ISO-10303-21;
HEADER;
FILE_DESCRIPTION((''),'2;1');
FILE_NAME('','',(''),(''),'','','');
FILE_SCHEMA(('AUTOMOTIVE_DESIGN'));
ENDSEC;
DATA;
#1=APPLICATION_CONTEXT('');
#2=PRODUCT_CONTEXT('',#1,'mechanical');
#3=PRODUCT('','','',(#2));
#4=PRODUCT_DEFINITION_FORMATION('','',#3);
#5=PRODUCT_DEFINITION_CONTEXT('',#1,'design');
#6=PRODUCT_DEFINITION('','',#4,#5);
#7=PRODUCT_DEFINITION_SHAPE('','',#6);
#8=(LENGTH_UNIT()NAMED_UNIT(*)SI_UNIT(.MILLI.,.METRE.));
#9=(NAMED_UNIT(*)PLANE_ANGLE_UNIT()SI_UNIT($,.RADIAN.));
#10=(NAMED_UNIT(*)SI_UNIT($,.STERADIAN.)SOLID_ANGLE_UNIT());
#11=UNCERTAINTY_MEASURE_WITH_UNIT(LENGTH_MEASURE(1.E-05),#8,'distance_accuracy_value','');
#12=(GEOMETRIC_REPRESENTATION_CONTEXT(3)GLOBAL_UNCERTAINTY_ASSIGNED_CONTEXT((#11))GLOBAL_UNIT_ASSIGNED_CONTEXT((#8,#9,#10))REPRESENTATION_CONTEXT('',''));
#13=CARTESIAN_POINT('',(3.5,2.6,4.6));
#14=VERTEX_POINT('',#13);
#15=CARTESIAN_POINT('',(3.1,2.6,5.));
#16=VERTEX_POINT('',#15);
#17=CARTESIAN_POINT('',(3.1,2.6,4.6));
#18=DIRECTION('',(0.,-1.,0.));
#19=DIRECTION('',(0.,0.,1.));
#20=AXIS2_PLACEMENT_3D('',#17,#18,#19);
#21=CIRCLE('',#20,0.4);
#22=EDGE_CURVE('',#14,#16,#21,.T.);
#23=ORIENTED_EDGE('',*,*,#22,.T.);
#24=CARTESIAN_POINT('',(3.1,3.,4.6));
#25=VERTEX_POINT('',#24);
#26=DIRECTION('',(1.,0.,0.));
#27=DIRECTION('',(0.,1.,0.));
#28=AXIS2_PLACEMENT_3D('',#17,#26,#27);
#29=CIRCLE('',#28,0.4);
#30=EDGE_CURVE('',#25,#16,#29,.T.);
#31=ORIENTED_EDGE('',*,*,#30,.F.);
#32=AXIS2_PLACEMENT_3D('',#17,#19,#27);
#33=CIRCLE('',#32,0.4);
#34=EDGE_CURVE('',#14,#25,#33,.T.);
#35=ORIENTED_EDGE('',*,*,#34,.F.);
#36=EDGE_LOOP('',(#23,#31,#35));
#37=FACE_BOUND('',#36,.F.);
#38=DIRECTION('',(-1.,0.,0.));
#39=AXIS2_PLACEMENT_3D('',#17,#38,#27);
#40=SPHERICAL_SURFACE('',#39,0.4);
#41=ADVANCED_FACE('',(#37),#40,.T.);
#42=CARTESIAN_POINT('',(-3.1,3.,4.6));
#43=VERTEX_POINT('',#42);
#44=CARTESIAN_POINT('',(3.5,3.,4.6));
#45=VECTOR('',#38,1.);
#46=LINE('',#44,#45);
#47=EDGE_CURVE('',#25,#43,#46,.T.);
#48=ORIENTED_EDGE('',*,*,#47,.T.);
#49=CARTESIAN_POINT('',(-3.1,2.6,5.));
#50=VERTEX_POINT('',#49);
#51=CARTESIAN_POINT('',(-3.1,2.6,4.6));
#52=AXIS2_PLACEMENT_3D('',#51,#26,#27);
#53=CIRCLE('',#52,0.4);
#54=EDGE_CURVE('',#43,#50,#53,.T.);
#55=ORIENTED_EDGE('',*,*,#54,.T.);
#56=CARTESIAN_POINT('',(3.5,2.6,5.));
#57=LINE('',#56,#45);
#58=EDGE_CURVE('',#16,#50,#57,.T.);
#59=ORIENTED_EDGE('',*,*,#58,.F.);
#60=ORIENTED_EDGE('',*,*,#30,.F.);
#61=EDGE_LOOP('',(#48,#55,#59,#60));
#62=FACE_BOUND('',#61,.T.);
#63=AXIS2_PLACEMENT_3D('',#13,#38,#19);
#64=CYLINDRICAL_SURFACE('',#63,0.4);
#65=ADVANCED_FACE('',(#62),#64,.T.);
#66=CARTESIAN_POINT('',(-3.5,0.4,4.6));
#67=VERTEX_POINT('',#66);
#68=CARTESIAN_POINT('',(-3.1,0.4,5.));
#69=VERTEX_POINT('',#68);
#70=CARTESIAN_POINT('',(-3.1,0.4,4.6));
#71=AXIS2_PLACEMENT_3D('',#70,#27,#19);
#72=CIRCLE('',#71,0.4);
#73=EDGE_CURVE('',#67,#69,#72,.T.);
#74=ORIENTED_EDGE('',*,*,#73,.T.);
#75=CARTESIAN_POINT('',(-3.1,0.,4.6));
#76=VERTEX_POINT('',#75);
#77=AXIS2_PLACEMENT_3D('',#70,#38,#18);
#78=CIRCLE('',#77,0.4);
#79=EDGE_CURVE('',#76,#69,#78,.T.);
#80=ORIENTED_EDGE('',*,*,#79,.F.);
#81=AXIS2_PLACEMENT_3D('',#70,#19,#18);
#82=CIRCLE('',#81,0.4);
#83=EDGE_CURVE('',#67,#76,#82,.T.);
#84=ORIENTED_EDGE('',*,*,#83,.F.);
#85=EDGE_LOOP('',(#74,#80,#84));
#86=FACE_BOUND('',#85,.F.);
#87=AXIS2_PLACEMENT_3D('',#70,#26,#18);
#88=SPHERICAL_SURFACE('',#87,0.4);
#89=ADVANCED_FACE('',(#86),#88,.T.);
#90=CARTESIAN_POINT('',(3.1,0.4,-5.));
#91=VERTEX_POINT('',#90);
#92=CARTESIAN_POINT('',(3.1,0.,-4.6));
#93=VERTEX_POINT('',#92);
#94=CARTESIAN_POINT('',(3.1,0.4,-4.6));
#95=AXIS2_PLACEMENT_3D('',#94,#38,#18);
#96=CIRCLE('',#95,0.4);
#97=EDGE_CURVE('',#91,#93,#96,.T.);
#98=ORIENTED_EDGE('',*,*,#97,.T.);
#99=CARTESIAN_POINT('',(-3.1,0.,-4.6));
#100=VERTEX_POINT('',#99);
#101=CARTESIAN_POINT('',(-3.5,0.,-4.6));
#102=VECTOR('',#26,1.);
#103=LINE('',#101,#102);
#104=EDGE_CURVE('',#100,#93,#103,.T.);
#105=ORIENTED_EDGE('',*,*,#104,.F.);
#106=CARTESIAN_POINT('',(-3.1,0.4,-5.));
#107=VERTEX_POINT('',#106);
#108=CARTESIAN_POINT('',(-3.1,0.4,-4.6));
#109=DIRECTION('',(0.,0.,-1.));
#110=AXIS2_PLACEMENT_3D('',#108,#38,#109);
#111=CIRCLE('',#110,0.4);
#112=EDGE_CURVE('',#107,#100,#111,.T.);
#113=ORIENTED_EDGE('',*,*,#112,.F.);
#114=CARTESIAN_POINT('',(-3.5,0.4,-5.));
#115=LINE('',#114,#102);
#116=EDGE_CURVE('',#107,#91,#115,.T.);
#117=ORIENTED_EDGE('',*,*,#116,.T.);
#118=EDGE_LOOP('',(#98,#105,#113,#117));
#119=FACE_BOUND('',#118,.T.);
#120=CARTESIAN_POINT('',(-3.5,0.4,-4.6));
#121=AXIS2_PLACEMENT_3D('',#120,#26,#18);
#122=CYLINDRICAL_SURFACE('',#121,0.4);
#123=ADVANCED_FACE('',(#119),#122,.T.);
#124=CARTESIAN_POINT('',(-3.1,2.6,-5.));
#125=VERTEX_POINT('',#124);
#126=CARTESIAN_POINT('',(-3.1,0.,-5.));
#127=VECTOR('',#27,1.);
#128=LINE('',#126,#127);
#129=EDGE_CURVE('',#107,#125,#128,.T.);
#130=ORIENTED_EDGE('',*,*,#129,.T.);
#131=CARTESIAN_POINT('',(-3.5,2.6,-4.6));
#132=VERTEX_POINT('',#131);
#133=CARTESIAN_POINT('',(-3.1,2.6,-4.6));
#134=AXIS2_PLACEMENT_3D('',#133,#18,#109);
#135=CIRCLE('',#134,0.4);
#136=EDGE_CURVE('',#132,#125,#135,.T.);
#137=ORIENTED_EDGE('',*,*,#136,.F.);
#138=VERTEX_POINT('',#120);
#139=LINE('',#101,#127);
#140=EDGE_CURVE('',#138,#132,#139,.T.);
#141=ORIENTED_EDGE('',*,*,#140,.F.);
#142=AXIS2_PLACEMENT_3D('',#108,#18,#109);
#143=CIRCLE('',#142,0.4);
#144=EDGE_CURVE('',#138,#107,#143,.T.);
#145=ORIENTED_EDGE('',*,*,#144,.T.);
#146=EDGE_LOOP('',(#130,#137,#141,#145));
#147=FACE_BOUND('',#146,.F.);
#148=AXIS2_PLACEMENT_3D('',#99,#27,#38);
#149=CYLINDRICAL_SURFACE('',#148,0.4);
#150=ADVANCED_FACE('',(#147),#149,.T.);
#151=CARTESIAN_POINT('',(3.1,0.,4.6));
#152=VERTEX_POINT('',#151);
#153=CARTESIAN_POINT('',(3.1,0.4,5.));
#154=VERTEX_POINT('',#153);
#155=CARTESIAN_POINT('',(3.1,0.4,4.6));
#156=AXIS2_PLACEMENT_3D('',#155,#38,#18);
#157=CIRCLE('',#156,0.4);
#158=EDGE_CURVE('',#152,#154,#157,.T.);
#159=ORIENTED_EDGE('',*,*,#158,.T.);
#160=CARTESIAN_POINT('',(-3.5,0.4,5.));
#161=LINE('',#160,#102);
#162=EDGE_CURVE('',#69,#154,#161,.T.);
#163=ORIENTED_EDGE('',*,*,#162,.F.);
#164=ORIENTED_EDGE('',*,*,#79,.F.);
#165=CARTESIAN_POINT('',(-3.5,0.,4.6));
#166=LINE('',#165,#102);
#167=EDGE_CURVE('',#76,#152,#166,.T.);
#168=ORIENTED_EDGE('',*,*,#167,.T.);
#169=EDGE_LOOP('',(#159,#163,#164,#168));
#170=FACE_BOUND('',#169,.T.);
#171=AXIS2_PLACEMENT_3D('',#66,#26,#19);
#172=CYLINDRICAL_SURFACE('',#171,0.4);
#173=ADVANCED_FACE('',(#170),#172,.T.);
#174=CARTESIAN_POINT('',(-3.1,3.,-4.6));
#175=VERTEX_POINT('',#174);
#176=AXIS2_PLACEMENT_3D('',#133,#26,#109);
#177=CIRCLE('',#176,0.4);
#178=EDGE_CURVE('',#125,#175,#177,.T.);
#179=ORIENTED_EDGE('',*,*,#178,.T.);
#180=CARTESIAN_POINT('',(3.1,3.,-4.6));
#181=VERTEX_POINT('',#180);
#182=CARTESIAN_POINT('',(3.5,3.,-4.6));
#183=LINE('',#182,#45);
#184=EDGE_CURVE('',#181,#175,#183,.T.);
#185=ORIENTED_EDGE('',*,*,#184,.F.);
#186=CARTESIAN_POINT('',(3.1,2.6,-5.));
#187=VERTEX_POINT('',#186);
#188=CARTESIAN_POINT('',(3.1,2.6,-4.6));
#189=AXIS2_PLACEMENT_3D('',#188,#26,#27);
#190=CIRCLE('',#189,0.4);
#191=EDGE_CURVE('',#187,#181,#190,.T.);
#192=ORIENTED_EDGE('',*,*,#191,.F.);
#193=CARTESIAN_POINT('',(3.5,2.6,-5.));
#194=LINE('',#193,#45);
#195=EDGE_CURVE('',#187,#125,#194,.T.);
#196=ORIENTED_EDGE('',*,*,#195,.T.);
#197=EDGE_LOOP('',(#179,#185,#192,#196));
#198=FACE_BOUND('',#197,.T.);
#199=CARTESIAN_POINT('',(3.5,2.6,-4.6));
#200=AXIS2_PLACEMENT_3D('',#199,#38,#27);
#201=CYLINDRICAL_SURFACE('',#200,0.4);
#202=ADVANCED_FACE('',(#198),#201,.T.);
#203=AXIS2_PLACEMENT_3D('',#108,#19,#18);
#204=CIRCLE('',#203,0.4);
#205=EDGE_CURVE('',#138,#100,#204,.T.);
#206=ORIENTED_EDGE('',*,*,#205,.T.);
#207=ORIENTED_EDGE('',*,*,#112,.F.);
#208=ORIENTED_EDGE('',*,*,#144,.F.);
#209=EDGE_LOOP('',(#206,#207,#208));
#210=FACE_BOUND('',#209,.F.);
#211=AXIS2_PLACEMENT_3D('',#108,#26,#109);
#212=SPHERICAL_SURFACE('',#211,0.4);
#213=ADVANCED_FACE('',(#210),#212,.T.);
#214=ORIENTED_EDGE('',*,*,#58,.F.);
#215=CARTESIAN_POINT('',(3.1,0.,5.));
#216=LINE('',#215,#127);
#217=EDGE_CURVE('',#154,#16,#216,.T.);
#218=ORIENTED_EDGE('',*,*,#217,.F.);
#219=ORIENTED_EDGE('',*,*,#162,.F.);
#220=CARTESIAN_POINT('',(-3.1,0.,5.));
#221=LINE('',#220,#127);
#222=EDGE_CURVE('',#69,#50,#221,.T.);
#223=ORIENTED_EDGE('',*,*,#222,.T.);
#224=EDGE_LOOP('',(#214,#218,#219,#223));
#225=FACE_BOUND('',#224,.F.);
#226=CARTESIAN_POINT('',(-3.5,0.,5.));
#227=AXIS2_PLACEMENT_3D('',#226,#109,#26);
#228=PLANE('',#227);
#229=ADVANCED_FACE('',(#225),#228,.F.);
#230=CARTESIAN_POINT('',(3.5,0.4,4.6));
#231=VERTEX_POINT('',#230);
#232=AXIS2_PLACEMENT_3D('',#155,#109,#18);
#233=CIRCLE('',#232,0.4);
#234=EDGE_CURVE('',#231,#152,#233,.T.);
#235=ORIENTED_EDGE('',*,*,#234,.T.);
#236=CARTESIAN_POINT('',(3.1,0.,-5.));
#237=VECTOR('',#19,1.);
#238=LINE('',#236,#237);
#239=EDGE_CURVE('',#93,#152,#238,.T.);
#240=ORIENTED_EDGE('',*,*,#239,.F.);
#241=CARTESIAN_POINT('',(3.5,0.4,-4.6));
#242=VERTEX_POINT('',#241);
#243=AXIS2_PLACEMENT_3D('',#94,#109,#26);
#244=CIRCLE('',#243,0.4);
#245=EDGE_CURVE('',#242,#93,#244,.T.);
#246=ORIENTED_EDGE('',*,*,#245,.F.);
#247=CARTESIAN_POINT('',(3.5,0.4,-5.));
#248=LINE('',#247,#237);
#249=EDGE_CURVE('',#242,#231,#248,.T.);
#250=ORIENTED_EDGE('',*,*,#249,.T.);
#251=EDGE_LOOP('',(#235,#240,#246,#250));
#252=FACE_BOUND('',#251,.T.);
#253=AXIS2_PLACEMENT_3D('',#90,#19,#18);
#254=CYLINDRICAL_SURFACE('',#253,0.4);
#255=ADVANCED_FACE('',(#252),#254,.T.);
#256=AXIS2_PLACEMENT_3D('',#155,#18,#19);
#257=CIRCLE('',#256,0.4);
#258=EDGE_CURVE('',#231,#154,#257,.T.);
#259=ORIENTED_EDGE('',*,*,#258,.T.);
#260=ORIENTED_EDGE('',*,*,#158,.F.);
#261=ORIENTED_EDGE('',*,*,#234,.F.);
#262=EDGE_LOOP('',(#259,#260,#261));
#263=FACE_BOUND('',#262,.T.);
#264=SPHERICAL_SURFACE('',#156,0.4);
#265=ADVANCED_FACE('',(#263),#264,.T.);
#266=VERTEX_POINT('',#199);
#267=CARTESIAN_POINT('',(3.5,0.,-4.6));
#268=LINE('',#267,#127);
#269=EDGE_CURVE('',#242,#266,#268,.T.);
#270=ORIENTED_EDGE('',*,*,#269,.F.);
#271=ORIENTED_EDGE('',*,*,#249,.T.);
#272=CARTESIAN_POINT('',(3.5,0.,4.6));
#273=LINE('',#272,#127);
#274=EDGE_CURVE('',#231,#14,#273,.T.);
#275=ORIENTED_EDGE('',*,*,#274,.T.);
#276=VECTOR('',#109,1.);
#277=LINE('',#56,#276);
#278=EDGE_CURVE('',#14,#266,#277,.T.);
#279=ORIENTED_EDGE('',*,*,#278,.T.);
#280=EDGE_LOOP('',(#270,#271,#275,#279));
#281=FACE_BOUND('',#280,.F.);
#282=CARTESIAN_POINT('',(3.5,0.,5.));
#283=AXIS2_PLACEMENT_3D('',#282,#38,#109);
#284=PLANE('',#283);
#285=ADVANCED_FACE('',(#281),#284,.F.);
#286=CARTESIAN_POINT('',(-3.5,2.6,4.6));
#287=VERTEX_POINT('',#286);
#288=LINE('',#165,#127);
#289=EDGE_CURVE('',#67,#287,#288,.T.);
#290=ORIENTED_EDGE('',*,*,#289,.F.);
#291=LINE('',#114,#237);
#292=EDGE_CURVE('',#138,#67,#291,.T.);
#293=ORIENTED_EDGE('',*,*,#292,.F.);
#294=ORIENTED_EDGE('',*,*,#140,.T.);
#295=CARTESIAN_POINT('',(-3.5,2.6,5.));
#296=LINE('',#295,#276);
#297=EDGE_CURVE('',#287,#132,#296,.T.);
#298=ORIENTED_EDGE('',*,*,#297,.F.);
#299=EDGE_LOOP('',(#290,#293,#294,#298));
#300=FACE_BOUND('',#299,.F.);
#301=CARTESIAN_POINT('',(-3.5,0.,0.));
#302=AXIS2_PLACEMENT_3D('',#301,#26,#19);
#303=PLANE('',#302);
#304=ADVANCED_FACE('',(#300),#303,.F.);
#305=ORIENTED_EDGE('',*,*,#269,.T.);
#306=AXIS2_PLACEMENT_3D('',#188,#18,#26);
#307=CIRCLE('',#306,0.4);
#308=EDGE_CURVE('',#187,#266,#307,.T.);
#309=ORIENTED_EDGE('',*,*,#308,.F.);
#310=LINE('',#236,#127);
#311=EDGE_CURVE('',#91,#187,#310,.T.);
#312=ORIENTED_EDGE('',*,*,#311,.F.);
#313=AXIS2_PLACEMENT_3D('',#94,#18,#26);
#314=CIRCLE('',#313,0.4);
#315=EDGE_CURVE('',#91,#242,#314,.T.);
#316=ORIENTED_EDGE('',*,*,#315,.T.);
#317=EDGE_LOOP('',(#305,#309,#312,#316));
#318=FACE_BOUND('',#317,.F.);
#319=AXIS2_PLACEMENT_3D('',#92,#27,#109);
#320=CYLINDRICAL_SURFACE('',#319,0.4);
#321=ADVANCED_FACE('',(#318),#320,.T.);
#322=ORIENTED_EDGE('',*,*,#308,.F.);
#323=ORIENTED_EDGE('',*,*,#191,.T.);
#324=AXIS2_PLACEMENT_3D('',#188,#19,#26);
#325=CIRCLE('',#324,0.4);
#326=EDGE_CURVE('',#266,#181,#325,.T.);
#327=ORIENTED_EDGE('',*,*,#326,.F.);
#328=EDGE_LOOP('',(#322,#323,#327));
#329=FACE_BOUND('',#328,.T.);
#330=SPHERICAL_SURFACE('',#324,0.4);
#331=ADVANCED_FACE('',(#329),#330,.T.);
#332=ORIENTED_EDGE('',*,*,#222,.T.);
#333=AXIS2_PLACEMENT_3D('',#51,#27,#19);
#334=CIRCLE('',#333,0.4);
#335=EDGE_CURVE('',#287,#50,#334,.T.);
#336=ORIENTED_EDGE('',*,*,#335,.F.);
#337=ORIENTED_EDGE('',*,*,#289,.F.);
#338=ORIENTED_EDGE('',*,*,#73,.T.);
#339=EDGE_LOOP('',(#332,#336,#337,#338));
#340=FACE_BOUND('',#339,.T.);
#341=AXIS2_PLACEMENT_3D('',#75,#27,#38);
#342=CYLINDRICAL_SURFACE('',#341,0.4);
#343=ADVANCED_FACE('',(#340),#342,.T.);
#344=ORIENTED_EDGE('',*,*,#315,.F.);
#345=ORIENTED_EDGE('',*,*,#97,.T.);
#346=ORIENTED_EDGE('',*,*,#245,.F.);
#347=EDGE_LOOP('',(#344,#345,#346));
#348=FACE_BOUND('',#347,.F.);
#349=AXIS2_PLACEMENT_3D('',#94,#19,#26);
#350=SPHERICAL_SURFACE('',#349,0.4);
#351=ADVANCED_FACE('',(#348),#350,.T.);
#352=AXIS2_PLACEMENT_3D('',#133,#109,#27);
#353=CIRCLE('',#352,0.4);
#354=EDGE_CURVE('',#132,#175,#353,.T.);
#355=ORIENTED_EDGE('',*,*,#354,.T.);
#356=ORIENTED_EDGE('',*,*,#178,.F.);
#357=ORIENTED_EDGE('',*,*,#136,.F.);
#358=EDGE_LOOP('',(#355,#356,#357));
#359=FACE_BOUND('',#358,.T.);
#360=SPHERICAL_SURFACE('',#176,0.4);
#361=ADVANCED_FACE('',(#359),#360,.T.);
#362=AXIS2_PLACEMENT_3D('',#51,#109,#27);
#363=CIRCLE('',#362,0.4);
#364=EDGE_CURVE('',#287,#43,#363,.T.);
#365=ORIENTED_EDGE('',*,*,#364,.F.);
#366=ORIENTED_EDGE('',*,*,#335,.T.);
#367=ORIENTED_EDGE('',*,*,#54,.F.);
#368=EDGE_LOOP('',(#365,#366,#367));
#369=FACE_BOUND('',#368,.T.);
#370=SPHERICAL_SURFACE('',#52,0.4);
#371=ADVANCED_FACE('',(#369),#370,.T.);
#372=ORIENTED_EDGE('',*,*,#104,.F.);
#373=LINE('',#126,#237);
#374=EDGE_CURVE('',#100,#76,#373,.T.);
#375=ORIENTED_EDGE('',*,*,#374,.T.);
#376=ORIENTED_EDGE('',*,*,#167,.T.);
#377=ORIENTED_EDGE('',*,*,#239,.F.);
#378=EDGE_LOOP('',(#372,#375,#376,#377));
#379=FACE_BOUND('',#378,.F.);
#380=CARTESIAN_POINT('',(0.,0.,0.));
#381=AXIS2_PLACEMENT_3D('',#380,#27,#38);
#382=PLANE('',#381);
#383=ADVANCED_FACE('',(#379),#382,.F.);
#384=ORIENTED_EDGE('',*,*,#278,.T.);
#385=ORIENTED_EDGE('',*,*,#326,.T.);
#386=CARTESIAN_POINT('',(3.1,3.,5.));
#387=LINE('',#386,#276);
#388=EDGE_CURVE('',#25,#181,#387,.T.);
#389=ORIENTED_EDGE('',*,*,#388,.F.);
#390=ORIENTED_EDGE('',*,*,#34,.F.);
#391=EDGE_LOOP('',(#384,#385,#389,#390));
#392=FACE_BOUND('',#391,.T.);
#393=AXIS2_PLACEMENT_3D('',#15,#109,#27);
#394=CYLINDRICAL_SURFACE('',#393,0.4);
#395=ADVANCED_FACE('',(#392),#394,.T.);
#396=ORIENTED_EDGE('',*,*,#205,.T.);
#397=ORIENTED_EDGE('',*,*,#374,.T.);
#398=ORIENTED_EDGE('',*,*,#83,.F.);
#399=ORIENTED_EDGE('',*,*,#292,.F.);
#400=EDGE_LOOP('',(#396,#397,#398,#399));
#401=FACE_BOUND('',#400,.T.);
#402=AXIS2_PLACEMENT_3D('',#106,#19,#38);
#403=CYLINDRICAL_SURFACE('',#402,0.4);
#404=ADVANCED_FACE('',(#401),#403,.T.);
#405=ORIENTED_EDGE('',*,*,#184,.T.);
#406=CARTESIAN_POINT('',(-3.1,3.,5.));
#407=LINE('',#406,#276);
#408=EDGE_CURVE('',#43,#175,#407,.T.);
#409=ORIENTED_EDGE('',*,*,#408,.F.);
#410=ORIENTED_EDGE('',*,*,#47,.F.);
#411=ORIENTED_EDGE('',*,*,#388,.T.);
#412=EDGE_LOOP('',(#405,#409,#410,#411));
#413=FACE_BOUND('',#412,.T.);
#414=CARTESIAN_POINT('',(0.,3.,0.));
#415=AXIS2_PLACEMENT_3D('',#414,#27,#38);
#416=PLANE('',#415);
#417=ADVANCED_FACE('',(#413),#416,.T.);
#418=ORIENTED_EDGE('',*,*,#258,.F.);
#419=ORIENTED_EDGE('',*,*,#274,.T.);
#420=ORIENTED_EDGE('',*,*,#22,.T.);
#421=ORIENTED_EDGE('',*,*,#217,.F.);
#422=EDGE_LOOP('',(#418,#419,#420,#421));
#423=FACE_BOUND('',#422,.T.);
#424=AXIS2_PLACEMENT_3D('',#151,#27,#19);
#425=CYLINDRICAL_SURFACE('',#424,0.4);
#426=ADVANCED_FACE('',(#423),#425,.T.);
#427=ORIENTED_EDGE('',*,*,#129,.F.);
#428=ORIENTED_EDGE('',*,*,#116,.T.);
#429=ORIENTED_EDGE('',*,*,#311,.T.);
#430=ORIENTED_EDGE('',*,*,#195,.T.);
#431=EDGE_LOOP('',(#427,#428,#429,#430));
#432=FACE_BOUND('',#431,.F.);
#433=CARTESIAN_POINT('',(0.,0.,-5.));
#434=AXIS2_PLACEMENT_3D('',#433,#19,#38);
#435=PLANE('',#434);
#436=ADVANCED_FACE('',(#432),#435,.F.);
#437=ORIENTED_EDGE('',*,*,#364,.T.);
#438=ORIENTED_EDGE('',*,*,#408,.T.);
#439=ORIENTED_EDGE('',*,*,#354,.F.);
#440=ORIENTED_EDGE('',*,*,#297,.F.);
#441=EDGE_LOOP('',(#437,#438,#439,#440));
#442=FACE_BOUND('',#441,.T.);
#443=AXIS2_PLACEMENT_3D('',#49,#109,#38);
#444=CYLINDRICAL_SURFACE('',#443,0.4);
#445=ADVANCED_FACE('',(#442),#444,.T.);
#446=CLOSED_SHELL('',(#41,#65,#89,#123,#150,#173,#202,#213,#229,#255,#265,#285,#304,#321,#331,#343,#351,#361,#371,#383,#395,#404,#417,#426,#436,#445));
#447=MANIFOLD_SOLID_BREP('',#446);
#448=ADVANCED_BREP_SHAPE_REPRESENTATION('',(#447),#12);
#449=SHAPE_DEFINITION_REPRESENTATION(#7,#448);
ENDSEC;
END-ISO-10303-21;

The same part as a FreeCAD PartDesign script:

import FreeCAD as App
import Part
import Sketcher

V = App.Vector


def add_polygon(sketch, points):
    """Adds a closed chain of lines whose ends are joined by coincident constraints."""
    first, n = sketch.GeometryCount, len(points)
    for a, b in zip(points, points[1:] + points[:1]):
        sketch.addGeometry(Part.LineSegment(App.Vector(*a, 0), App.Vector(*b, 0)), False)
    for i in range(n):
        sketch.addConstraint(Sketcher.Constraint("Coincident", first + i, 2, first + (i + 1) % n, 1))

doc = App.newDocument("Part")
body = doc.addObject("PartDesign::Body", "Body")

sketch1 = body.newObject("Sketcher::SketchObject", "Sketch")
sketch1.AttachmentSupport = (doc.getObject("XZ_Plane"), [""])
sketch1.MapMode = "FlatFace"
add_polygon(sketch1, [(-4, 5), (4, 5), (4, -5), (-4, -5)])
sketch1.addConstraint(Sketcher.Constraint("Horizontal", 0))
sketch1.addConstraint(Sketcher.Constraint("Vertical", 1))
sketch1.addConstraint(Sketcher.Constraint("Horizontal", 2))
sketch1.addConstraint(Sketcher.Constraint("Vertical", 3))
sketch1.addConstraint(Sketcher.Constraint("Symmetric", 0, 2, 2, 2, -1, 1))
sketch1.addConstraint(Sketcher.Constraint("DistanceX", 0, 1, 0, 2, 7.0))
sketch1.addConstraint(Sketcher.Constraint("DistanceY", 1, 2, 1, 1, 10.0))
pad1 = body.newObject("PartDesign::Pad", "Pad")
pad1.Profile = sketch1
pad1.Length = 3
pad1.Reversed = True
doc.recompute()

fillet = body.newObject("PartDesign::Fillet", "Fillet")
fillet.Base = (pad1, ["Edge1"])
fillet.UseAllEdges = True
fillet.Radius = 0.4

doc.recompute()
